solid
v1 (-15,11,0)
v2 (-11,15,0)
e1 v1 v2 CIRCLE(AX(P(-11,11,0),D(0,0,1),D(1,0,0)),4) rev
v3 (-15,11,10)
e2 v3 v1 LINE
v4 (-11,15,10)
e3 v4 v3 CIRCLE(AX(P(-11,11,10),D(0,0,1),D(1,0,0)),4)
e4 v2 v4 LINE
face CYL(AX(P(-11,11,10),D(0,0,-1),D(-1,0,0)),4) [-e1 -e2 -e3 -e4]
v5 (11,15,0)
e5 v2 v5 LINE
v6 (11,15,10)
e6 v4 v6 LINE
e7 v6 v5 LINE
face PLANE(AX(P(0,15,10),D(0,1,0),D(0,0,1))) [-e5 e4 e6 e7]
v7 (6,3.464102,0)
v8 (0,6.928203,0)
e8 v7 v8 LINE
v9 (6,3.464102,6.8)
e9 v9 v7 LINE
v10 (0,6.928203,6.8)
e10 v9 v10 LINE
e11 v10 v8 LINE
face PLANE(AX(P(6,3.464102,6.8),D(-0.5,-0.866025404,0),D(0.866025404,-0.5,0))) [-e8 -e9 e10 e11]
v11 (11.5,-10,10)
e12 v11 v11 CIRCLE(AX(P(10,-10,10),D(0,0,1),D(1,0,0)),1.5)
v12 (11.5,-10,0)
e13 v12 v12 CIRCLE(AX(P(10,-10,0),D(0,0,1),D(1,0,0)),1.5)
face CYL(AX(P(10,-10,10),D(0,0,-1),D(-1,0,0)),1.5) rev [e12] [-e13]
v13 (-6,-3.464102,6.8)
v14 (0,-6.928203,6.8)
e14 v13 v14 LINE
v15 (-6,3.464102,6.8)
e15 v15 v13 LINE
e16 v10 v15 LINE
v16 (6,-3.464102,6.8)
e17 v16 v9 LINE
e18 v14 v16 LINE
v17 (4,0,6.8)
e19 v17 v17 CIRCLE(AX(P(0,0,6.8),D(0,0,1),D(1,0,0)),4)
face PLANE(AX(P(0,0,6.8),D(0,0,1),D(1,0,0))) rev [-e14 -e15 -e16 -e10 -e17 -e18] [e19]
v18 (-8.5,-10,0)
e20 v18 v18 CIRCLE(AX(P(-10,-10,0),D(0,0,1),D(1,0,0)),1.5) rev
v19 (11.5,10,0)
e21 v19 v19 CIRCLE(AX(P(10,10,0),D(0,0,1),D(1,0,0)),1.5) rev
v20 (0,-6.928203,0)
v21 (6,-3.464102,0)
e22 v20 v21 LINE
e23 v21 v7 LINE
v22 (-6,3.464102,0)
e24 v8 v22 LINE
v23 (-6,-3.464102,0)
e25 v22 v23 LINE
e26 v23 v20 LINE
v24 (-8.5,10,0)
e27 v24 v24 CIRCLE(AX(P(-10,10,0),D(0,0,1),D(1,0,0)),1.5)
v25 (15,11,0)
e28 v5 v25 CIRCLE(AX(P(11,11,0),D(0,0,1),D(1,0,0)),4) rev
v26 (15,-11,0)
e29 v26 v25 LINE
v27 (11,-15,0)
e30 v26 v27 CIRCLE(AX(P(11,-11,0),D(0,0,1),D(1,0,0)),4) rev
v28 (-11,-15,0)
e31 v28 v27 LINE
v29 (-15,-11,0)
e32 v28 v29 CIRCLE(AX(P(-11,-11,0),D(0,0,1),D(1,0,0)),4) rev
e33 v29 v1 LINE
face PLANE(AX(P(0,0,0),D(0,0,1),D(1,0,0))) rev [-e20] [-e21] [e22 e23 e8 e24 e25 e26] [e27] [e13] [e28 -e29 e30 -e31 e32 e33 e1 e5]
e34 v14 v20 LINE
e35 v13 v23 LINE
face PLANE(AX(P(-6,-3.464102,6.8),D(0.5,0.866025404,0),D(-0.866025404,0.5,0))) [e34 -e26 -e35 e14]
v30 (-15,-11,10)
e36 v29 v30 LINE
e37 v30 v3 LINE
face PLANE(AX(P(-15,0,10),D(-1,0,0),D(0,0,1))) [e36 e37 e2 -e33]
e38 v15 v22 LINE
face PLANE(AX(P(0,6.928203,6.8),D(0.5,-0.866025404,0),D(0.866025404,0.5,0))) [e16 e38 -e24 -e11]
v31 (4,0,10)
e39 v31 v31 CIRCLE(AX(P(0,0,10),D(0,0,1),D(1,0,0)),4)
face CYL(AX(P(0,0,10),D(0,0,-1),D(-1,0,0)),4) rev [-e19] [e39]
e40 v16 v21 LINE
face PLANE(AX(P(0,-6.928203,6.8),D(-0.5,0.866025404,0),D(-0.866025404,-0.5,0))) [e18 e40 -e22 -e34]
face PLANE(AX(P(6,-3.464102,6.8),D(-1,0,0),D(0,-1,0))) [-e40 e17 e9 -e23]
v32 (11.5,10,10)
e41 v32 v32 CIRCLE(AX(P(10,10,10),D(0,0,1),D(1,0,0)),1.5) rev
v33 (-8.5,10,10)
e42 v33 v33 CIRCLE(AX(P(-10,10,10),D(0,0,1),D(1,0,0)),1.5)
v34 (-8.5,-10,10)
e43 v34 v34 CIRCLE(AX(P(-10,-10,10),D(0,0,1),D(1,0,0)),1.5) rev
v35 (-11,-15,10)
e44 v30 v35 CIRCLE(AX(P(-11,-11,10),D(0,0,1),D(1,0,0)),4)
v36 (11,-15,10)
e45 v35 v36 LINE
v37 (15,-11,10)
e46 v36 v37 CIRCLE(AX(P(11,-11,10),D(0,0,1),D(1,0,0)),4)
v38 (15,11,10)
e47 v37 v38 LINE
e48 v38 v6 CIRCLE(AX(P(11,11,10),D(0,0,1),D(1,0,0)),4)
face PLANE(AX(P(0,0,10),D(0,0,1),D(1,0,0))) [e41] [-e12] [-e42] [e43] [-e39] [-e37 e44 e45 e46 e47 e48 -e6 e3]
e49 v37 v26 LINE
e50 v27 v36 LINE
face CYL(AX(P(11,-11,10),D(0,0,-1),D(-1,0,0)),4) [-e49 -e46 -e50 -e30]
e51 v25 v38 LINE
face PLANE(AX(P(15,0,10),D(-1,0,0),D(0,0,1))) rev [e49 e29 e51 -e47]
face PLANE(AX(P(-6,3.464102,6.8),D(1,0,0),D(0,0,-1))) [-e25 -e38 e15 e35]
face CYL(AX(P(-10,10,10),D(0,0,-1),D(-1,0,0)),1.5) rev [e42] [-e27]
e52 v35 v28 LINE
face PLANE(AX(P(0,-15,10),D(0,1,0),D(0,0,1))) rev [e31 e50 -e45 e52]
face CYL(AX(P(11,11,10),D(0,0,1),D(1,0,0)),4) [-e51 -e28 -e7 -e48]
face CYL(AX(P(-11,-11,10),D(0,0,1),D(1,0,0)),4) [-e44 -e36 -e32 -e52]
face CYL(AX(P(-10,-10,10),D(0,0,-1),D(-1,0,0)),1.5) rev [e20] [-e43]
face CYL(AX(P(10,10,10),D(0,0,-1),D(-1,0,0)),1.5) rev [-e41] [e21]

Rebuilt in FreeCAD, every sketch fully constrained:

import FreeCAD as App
import Part
import Sketcher
from FreeCAD import Vector
Q = App.Units.Quantity


def edges_at(feature, points):
    """Names of the edges that pass closest to the given points."""
    edges = feature.Shape.Edges
    near = lambda p: min(range(len(edges)), key=lambda i: edges[i].distToShape(Part.Vertex(*p))[0])
    return sorted({f"Edge{near(p) + 1}" for p in points})

doc = App.newDocument("Part")
params = doc.addObject("Spreadsheet::Sheet", "Params")
for row, (alias, value) in enumerate([
    ("sketch1_diameter", "3 mm"),
    ("sketch1_diameter2", "8 mm"),
    ("sketch1_width", "30 mm"),
    ("pad1_length", "10 mm"),
    ("pocket1_length", "6.8 mm"),
    ("fillet_radius", "4 mm"),
], start=1):
    params.set(f"A{row}", alias)
    params.set(f"B{row}", "=" + value)
    params.setAlias(f"B{row}", alias)

body = doc.addObject("PartDesign::Body", "Body")

# Sketch on XY plane
sketch1 = body.newObject("Sketcher::SketchObject", "Sketch")
sketch1.AttachmentSupport = (doc.getObject("XY_Plane"), [""])
sketch1.MapMode = "FlatFace"
sketch1.addGeometry([
    Part.LineSegment(Vector(-15, 15, 0), Vector(-15, -15, 0)),  # 0
    Part.LineSegment(Vector(-15, -15, 0), Vector(15, -15, 0)),  # 1
    Part.LineSegment(Vector(15, -15, 0), Vector(15, 15, 0)),  # 2
    Part.LineSegment(Vector(15, 15, 0), Vector(-15, 15, 0)),  # 3
    Part.Circle(Vector(-10, -10, 0), Vector(0, 0, 1), 1.5),  # 4
    Part.Circle(Vector(10, -10, 0), Vector(0, 0, 1), 1.5),  # 5
    Part.Circle(Vector(-10, 10, 0), Vector(0, 0, 1), 1.5),  # 6
    Part.Circle(Vector(0, 0, 0), Vector(0, 0, 1), 4),  # 7
    Part.Circle(Vector(10, 10, 0), Vector(0, 0, 1), 1.5),  # 8
], False)
sketch1.addConstraint([
    Sketcher.Constraint("Coincident", 0, 2, 1, 1),
    Sketcher.Constraint("Coincident", 1, 2, 2, 1),
    Sketcher.Constraint("Coincident", 2, 2, 3, 1),
    Sketcher.Constraint("Coincident", 3, 2, 0, 1),
    Sketcher.Constraint("Vertical", 0),
    Sketcher.Constraint("Horizontal", 1),
    Sketcher.Constraint("Vertical", 2),
    Sketcher.Constraint("Horizontal", 3),
    Sketcher.Constraint("Coincident", 7, 3, -1, 1),
    Sketcher.Constraint("Equal", 4, 5),
    Sketcher.Constraint("Equal", 5, 6),
    Sketcher.Constraint("Equal", 6, 8),
    Sketcher.Constraint("Symmetric", 5, 3, 6, 3, -1, 1),
    Sketcher.Constraint("Symmetric", 4, 3, 8, 3, -1, 1),
    Sketcher.Constraint("Symmetric", 0, 2, 2, 2, -1, 1),
    Sketcher.Constraint("Symmetric", 4, 3, 5, 3, -2),
    Sketcher.Constraint("Equal", 3, 0),
    Sketcher.Constraint("Diameter", 4, 3.0),
    Sketcher.Constraint("Diameter", 7, 8.0),
    Sketcher.Constraint("DistanceX", 1, 1, 1, 2, 30.0),
    Sketcher.Constraint("DistanceX", 4, 3, -1, 1, 10.0),
    Sketcher.Constraint("DistanceY", 4, 3, -1, 1, 10.0),
])
sketch1.setExpression("Constraints[17]", "Params.sketch1_diameter")
sketch1.setExpression("Constraints[18]", "Params.sketch1_diameter2")
sketch1.setExpression("Constraints[19]", "Params.sketch1_width")
pad1 = body.newObject("PartDesign::Pad", "Pad")
pad1.Profile = sketch1
pad1.setExpression("Length", "Params.pad1_length")

# Sketch on XY plane
sketch2 = body.newObject("Sketcher::SketchObject", "Sketch001")
sketch2.AttachmentSupport = (doc.getObject("XY_Plane"), [""])
sketch2.MapMode = "FlatFace"
sketch2.addGeometry([
    Part.LineSegment(Vector(6, 3, 0), Vector(0, 7, 0)),  # 0
    Part.LineSegment(Vector(0, 7, 0), Vector(-6, 3, 0)),  # 1
    Part.LineSegment(Vector(-6, 3, 0), Vector(-6, -3, 0)),  # 2
    Part.LineSegment(Vector(-6, -3, 0), Vector(0, -7, 0)),  # 3
    Part.LineSegment(Vector(0, -7, 0), Vector(6, -3, 0)),  # 4
    Part.LineSegment(Vector(6, -3, 0), Vector(6, 3, 0)),  # 5
], False)
sketch2.addConstraint([
    Sketcher.Constraint("Coincident", 0, 2, 1, 1),
    Sketcher.Constraint("Coincident", 1, 2, 2, 1),
    Sketcher.Constraint("Coincident", 2, 2, 3, 1),
    Sketcher.Constraint("Coincident", 3, 2, 4, 1),
    Sketcher.Constraint("Coincident", 4, 2, 5, 1),
    Sketcher.Constraint("Coincident", 5, 2, 0, 1),
    Sketcher.Constraint("Vertical", 2),
    Sketcher.Constraint("Vertical", 5),
    Sketcher.Constraint("Symmetric", 0, 2, 3, 2, -1, 1),
    Sketcher.Constraint("Symmetric", 1, 2, 4, 2, -1, 1),
    Sketcher.Constraint("PointOnObject", 0, 2, -2),
    Sketcher.Constraint("Parallel", 0, 3),
    Sketcher.Constraint("Horizontal", 2, 2, 4, 2),
    Sketcher.Constraint("Angle", 0, Q("150 deg")),
    Sketcher.Constraint("DistanceX", 1, 2, -1, 1, 6.0),
    Sketcher.Constraint("DistanceY", -1, 1, 1, 2, 3.464102),
])
pocket1 = body.newObject("PartDesign::Pocket", "Pocket")
pocket1.Profile = sketch2
pocket1.setExpression("Length", "Params.pocket1_length")
pocket1.Reversed = True
doc.recompute()

fillet = body.newObject("PartDesign::Fillet", "Fillet")
fillet.Base = (pocket1, edges_at(pocket1, [
    (-15, -15, 5),
    (-15, 15, 5),
    (15, 15, 5),
    (15, -15, 5),
]))
fillet.setExpression("Radius", "Params.fillet_radius")

doc.recompute()
